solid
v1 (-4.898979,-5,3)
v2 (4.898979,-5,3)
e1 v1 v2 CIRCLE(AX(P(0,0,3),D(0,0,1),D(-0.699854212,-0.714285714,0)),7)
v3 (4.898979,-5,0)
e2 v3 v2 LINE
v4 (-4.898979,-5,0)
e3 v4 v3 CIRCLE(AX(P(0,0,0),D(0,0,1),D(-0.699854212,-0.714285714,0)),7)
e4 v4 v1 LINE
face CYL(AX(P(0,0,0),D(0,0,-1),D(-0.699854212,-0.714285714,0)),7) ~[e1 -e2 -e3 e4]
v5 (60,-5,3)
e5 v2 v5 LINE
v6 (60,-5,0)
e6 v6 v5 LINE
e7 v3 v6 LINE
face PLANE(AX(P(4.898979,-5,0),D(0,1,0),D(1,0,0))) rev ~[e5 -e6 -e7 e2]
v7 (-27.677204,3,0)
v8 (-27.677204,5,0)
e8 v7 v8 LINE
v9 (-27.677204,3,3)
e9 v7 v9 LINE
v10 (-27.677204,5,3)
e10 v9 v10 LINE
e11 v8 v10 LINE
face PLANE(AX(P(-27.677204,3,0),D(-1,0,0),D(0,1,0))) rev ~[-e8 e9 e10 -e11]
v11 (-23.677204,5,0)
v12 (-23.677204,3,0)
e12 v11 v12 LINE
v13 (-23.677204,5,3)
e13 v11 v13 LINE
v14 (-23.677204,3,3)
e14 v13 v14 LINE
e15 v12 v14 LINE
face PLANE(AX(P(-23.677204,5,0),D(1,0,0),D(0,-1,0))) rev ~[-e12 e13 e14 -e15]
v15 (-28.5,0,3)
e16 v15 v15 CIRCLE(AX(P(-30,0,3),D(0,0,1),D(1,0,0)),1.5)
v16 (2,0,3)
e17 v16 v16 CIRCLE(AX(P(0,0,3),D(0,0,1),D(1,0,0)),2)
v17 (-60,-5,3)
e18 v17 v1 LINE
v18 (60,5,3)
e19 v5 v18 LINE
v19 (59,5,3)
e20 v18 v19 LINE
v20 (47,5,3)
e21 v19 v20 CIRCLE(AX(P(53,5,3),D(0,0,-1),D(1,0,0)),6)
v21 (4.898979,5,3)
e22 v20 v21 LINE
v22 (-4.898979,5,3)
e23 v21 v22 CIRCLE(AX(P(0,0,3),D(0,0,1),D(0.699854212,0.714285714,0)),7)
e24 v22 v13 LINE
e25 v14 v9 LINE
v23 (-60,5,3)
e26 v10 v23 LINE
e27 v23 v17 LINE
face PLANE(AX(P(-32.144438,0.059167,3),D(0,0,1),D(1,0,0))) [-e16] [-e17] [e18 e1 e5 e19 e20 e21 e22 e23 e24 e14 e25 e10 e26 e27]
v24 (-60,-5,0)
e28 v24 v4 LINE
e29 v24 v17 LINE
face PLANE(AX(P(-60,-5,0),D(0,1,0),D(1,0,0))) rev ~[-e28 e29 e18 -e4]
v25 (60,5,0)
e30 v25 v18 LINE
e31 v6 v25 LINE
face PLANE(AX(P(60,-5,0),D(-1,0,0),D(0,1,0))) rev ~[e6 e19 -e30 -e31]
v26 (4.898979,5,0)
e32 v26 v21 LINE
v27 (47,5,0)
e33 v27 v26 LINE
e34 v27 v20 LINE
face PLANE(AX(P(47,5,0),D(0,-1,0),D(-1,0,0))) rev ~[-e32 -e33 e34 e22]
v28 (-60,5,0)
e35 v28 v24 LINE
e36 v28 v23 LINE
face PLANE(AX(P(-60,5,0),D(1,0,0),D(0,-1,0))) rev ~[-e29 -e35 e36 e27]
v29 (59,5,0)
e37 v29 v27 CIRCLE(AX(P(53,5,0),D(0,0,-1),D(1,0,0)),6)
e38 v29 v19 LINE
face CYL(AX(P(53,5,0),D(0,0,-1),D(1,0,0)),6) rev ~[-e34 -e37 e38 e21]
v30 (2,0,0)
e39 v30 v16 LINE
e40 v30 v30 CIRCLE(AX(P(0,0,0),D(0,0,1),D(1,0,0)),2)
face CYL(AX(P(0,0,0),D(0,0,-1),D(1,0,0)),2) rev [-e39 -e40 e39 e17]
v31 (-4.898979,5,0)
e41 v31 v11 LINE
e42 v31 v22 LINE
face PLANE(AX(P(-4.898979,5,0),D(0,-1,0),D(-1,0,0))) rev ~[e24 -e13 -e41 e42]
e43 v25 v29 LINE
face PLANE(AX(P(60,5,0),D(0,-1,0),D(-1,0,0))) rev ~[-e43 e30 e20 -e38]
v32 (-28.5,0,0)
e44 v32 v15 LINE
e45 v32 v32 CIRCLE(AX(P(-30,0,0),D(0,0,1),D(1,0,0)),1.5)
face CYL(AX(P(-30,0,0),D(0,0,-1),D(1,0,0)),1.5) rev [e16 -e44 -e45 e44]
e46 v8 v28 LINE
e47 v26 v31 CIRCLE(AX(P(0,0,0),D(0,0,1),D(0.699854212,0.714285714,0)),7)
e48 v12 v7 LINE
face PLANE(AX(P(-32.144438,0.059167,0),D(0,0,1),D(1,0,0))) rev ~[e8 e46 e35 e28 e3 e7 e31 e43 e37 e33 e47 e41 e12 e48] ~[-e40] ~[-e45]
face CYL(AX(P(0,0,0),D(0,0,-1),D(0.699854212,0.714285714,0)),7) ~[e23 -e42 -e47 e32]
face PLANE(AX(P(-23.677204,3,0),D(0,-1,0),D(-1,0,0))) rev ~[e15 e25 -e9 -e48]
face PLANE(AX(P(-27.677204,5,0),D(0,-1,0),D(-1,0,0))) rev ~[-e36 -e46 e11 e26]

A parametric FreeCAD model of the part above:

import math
import FreeCAD as App
import Part
import Sketcher

doc = App.newDocument("Part")
body = doc.addObject("PartDesign::Body", "Body")

sketch1 = body.newObject("Sketcher::SketchObject", "Sketch")
sketch1.AttachmentSupport = (doc.getObject("XY_Plane"), [""])
sketch1.MapMode = "FlatFace"
sketch1.addGeometry([
    Part.LineSegment(App.Vector(-27.677204, 5, 0), App.Vector(-60, 5, 0)),
    Part.LineSegment(App.Vector(-60, 5, 0), App.Vector(-60, -5, 0)),
    Part.LineSegment(App.Vector(-60, -5, 0), App.Vector(-4.898979, -5, 0)),
    Part.ArcOfCircle(Part.Circle(App.Vector(0, 0, 0), App.Vector(0, 0, 1), 7), math.radians(-134.415309), math.radians(-45.584691)),
    Part.LineSegment(App.Vector(4.898979, -5, 0), App.Vector(60, -5, 0)),
    Part.LineSegment(App.Vector(60, -5, 0), App.Vector(60, 5, 0)),
    Part.LineSegment(App.Vector(60, 5, 0), App.Vector(59, 5, 0)),
    Part.ArcOfCircle(Part.Circle(App.Vector(53, 5, 0), App.Vector(0, 0, 1), 6), math.radians(180), math.radians(360)),
    Part.LineSegment(App.Vector(47, 5, 0), App.Vector(4.898979, 5, 0)),
    Part.ArcOfCircle(Part.Circle(App.Vector(0, 0, 0), App.Vector(0, 0, 1), 7), math.radians(45.584691), math.radians(134.415309)),
    Part.LineSegment(App.Vector(-4.898979, 5, 0), App.Vector(-23.677204, 5, 0)),
    Part.LineSegment(App.Vector(-23.677204, 5, 0), App.Vector(-23.677204, 3, 0)),
    Part.LineSegment(App.Vector(-23.677204, 3, 0), App.Vector(-27.677204, 3, 0)),
    Part.LineSegment(App.Vector(-27.677204, 3, 0), App.Vector(-27.677204, 5, 0)),
    Part.Circle(App.Vector(-30, 0, 0), App.Vector(0, 0, 1), 1.5),
    Part.Circle(App.Vector(0, 0, 0), App.Vector(0, 0, 1), 2),
], False)
sketch1.addConstraint([
    Sketcher.Constraint("Coincident", 0, 2, 1, 1),
    Sketcher.Constraint("Coincident", 1, 2, 2, 1),
    Sketcher.Constraint("Coincident", 2, 2, 3, 1),
    Sketcher.Constraint("Coincident", 3, 2, 4, 1),
    Sketcher.Constraint("Coincident", 4, 2, 5, 1),
    Sketcher.Constraint("Coincident", 5, 2, 6, 1),
    Sketcher.Constraint("Coincident", 6, 2, 7, 2),
    Sketcher.Constraint("Coincident", 7, 1, 8, 1),
    Sketcher.Constraint("Coincident", 8, 2, 9, 1),
    Sketcher.Constraint("Coincident", 9, 2, 10, 1),
    Sketcher.Constraint("Coincident", 10, 2, 11, 1),
    Sketcher.Constraint("Coincident", 11, 2, 12, 1),
    Sketcher.Constraint("Coincident", 12, 2, 13, 1),
    Sketcher.Constraint("Coincident", 13, 2, 0, 1),
    Sketcher.Constraint("Horizontal", 0),
    Sketcher.Constraint("Vertical", 1),
    Sketcher.Constraint("Horizontal", 2),
    Sketcher.Constraint("Horizontal", 4),
    Sketcher.Constraint("Vertical", 5),
    Sketcher.Constraint("Horizontal", 6),
    Sketcher.Constraint("Horizontal", 8),
    Sketcher.Constraint("Horizontal", 10),
    Sketcher.Constraint("Vertical", 11),
    Sketcher.Constraint("Horizontal", 12),
    Sketcher.Constraint("Vertical", 13),
    Sketcher.Constraint("Coincident", 3, 3, -1, 1),
    Sketcher.Constraint("Coincident", 9, 3, -1, 1),
    Sketcher.Constraint("Coincident", 15, 3, -1, 1),
    Sketcher.Constraint("Equal", 3, 9),
    Sketcher.Constraint("Symmetric", 0, 2, 4, 2, -1, 1),
    Sketcher.Constraint("PointOnObject", 14, 3, -1),
    Sketcher.Constraint("Horizontal", 7, 3, 0, 2),
    Sketcher.Constraint("Horizontal", 2, 2, 3, 2),
    Sketcher.Constraint("Horizontal", 0, 2, 5, 2),
    Sketcher.Constraint("Horizontal", 6, 2, 7, 1),
    Sketcher.Constraint("Horizontal", 8, 2, 9, 2),
    Sketcher.Constraint("Diameter", 14, 3.0),
    Sketcher.Constraint("Diameter", 15, 4.0),
    Sketcher.Constraint("Radius", 3, 7.0),
    Sketcher.Constraint("Radius", 7, 6.0),
    Sketcher.Constraint("DistanceX", 6, 2, 6, 1, 1.0),
    Sketcher.Constraint("DistanceX", 12, 2, 12, 1, 4.0),
    Sketcher.Constraint("DistanceY", 1, 2, 1, 1, 10.0),
    Sketcher.Constraint("DistanceY", 11, 2, 11, 1, 2.0),
    Sketcher.Constraint("DistanceX", -1, 1, 7, 3, 53.0),
    Sketcher.Constraint("DistanceX", 14, 3, -1, 1, 30.0),
    Sketcher.Constraint("DistanceX", 0, 2, 0, 1, 32.322796),
])
pad1 = body.newObject("PartDesign::Pad", "Pad")
pad1.Profile = sketch1
pad1.Length = 3

doc.recompute()
